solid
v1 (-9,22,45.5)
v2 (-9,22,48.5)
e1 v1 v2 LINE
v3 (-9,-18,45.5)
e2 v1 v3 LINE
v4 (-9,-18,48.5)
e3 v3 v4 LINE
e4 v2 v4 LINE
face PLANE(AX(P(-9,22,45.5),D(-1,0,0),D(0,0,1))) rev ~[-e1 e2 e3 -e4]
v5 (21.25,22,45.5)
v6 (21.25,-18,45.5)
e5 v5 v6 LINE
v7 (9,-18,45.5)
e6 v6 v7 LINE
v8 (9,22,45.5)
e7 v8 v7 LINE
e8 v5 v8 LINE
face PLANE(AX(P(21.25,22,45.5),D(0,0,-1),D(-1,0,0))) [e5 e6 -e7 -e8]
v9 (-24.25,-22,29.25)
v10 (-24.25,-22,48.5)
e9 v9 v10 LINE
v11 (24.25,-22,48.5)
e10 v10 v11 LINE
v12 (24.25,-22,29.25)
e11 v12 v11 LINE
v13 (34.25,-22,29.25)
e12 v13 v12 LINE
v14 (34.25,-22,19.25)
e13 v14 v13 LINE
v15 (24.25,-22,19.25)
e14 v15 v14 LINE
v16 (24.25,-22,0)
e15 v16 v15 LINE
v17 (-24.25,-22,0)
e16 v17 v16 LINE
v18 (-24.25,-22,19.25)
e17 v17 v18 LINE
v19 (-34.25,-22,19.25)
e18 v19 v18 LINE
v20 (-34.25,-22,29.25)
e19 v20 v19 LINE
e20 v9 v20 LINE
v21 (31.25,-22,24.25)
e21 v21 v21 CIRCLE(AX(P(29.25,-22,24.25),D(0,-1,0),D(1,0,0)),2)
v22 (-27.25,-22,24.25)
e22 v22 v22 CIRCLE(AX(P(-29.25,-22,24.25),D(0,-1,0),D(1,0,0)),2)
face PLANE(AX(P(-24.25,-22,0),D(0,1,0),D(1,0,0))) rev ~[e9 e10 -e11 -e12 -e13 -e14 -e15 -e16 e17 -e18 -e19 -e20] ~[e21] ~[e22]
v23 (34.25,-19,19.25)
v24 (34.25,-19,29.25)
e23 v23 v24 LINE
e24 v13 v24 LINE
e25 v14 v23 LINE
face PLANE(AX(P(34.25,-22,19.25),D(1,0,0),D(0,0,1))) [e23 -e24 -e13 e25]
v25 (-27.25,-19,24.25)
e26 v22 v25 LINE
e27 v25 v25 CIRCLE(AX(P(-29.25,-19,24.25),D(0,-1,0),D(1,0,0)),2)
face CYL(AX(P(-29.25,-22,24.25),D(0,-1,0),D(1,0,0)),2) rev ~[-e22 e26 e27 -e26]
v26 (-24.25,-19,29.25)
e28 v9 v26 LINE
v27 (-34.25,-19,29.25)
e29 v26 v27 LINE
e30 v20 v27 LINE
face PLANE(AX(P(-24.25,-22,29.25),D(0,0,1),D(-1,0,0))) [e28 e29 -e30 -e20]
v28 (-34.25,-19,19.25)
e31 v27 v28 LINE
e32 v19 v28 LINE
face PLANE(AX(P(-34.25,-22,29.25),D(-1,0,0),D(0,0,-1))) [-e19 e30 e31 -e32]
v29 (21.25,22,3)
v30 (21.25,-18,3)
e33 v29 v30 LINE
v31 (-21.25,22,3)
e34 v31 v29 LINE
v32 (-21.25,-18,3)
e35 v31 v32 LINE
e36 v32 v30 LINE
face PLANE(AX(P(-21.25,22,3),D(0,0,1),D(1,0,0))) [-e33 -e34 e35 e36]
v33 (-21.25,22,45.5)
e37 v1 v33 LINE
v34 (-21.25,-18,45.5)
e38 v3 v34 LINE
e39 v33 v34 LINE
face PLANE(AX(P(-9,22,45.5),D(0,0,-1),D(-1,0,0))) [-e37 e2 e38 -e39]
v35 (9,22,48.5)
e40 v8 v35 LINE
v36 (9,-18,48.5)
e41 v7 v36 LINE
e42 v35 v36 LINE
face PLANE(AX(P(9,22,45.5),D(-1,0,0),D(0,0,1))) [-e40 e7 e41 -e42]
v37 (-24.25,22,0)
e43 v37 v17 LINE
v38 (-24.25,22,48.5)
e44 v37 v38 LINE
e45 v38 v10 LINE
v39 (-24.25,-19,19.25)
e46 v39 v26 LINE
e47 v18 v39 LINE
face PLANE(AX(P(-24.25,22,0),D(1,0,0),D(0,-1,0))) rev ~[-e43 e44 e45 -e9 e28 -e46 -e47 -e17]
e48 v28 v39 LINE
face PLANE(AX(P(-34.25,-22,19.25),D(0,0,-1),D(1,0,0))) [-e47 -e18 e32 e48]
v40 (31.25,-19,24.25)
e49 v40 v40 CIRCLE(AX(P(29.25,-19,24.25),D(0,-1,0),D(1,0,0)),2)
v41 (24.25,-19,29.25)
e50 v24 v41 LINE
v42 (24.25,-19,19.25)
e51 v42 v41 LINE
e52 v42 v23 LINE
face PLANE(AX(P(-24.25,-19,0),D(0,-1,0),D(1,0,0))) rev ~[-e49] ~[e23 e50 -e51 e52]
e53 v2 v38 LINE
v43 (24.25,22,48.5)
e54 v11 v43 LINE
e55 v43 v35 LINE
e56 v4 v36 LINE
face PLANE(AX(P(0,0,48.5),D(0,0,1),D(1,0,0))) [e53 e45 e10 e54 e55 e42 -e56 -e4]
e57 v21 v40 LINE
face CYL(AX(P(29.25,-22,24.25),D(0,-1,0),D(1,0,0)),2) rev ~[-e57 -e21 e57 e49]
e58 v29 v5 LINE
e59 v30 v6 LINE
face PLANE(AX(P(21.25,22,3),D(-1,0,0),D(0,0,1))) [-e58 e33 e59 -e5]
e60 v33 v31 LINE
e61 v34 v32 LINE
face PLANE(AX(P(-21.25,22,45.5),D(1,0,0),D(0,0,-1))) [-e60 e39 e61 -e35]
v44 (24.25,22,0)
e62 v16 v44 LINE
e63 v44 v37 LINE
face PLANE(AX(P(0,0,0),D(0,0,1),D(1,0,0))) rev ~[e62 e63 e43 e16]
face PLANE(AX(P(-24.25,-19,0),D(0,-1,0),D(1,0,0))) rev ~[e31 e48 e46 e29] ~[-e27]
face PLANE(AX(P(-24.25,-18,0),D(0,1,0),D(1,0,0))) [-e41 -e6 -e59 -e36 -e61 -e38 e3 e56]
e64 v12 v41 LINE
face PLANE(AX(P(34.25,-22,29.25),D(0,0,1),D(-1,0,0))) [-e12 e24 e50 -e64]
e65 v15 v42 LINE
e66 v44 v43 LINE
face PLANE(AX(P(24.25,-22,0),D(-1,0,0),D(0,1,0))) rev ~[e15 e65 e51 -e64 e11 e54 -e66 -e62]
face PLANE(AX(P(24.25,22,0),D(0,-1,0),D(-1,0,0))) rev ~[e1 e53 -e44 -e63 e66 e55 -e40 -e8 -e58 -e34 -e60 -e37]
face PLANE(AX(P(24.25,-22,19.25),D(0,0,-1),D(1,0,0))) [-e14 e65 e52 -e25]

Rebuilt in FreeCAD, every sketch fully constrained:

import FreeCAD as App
import Part
import Sketcher
Q = App.Units.Quantity

doc = App.newDocument("Part")
body = doc.addObject("PartDesign::Body", "Body")

# Sketch on XY plane
sketch1 = body.newObject("Sketcher::SketchObject", "Sketch")
sketch1.AttachmentSupport = (doc.getObject("XY_Plane"), [""])
sketch1.MapMode = "FlatFace"
sketch1.addGeometry([
    Part.LineSegment(App.Vector(-24.25, 22, 0), App.Vector(-24.25, -22, 0)),
    Part.LineSegment(App.Vector(-24.25, -22, 0), App.Vector(24.25, -22, 0)),
    Part.LineSegment(App.Vector(24.25, -22, 0), App.Vector(24.25, 22, 0)),
    Part.LineSegment(App.Vector(24.25, 22, 0), App.Vector(-24.25, 22, 0)),
], False)
sketch1.addConstraint([
    Sketcher.Constraint("Coincident", 0, 2, 1, 1),
    Sketcher.Constraint("Coincident", 1, 2, 2, 1),
    Sketcher.Constraint("Coincident", 2, 2, 3, 1),
    Sketcher.Constraint("Coincident", 3, 2, 0, 1),
    Sketcher.Constraint("Vertical", 0),
    Sketcher.Constraint("Horizontal", 1),
    Sketcher.Constraint("Vertical", 2),
    Sketcher.Constraint("Horizontal", 3),
    Sketcher.Constraint("Symmetric", 0, 2, 2, 2, -1, 1),
    Sketcher.Constraint("DistanceY", 0, 2, 0, 1, Q("44 mm")),
    Sketcher.Constraint("DistanceX", 1, 1, 1, 2, Q("48.5 mm")),
])
pad1 = body.newObject("PartDesign::Pad", "Pad")
pad1.Profile = sketch1
pad1.Length = 48.5

# Sketch on XZ plane
sketch2 = body.newObject("Sketcher::SketchObject", "Sketch001")
sketch2.AttachmentSupport = (doc.getObject("XZ_Plane"), [""])
sketch2.MapMode = "FlatFace"
sketch2.AttachmentOffset = App.Placement(App.Vector(0, 0, -22), App.Rotation())
sketch2.addGeometry([
    Part.LineSegment(App.Vector(21.25, 3, 0), App.Vector(-21.25, 3, 0)),  # 0
    Part.LineSegment(App.Vector(-21.25, 3, 0), App.Vector(-21.25, 45.5, 0)),  # 1
    Part.LineSegment(App.Vector(-21.25, 45.5, 0), App.Vector(-9, 45.5, 0)),  # 2
    Part.LineSegment(App.Vector(-9, 45.5, 0), App.Vector(-9, 48.5, 0)),  # 3
    Part.LineSegment(App.Vector(-9, 48.5, 0), App.Vector(9, 48.5, 0)),  # 4
    Part.LineSegment(App.Vector(9, 48.5, 0), App.Vector(9, 45.5, 0)),  # 5
    Part.LineSegment(App.Vector(9, 45.5, 0), App.Vector(21.25, 45.5, 0)),  # 6
    Part.LineSegment(App.Vector(21.25, 45.5, 0), App.Vector(21.25, 3, 0)),  # 7
], False)
sketch2.addConstraint([
    Sketcher.Constraint("Coincident", 0, 2, 1, 1),
    Sketcher.Constraint("Coincident", 1, 2, 2, 1),
    Sketcher.Constraint("Coincident", 2, 2, 3, 1),
    Sketcher.Constraint("Coincident", 3, 2, 4, 1),
    Sketcher.Constraint("Coincident", 4, 2, 5, 1),
    Sketcher.Constraint("Coincident", 5, 2, 6, 1),
    Sketcher.Constraint("Coincident", 6, 2, 7, 1),
    Sketcher.Constraint("Coincident", 7, 2, 0, 1),
    Sketcher.Constraint("Horizontal", 0),
    Sketcher.Constraint("Vertical", 1),
    Sketcher.Constraint("Horizontal", 2),
    Sketcher.Constraint("Vertical", 3),
    Sketcher.Constraint("Horizontal", 4),
    Sketcher.Constraint("Vertical", 5),
    Sketcher.Constraint("Horizontal", 6),
    Sketcher.Constraint("Vertical", 7),
    Sketcher.Constraint("Symmetric", 2, 2, 5, 2, -2),
    Sketcher.Constraint("Equal", 2, 6),
    Sketcher.Constraint("Equal", 0, 1),
    Sketcher.Constraint("DistanceX", 4, 1, 4, 2, Q("18 mm")),
    Sketcher.Constraint("DistanceY", 3, 1, 3, 2, Q("3 mm")),
    Sketcher.Constraint("DistanceX", 0, 2, 0, 1, Q("42.5 mm")),
    Sketcher.Constraint("DistanceY", -1, 1, 0, 2, Q("3 mm")),
])
pocket1 = body.newObject("PartDesign::Pocket", "Pocket")
pocket1.Profile = sketch2
pocket1.Length = 40
pocket1.Reversed = True

# Sketch on XZ plane
sketch3 = body.newObject("Sketcher::SketchObject", "Sketch002")
sketch3.AttachmentSupport = (doc.getObject("XZ_Plane"), [""])
sketch3.MapMode = "FlatFace"
sketch3.AttachmentOffset = App.Placement(App.Vector(0, 0, 22), App.Rotation())
sketch3.addGeometry([
    Part.LineSegment(App.Vector(-34.25, 29.25, 0), App.Vector(-34.25, 19.25, 0)),  # 0
    Part.LineSegment(App.Vector(-34.25, 19.25, 0), App.Vector(-24.25, 19.25, 0)),  # 1
    Part.LineSegment(App.Vector(-24.25, 19.25, 0), App.Vector(-24.25, 29.25, 0)),  # 2
    Part.LineSegment(App.Vector(-24.25, 29.25, 0), App.Vector(-34.25, 29.25, 0)),  # 3
    Part.Circle(App.Vector(-29.25, 24.25, 0), App.Vector(0, 0, 1), 2),  # 4
    Part.LineSegment(App.Vector(24.25, 29.25, 0), App.Vector(24.25, 19.25, 0)),  # 5
    Part.LineSegment(App.Vector(24.25, 19.25, 0), App.Vector(34.25, 19.25, 0)),  # 6
    Part.LineSegment(App.Vector(34.25, 19.25, 0), App.Vector(34.25, 29.25, 0)),  # 7
    Part.LineSegment(App.Vector(34.25, 29.25, 0), App.Vector(24.25, 29.25, 0)),  # 8
    Part.Circle(App.Vector(29.25, 24.25, 0), App.Vector(0, 0, 1), 2),  # 9
], False)
sketch3.addConstraint([
    Sketcher.Constraint("Coincident", 0, 2, 1, 1),
    Sketcher.Constraint("Coincident", 1, 2, 2, 1),
    Sketcher.Constraint("Coincident", 2, 2, 3, 1),
    Sketcher.Constraint("Coincident", 3, 2, 0, 1),
    Sketcher.Constraint("Coincident", 5, 2, 6, 1),
    Sketcher.Constraint("Coincident", 6, 2, 7, 1),
    Sketcher.Constraint("Coincident", 7, 2, 8, 1),
    Sketcher.Constraint("Coincident", 8, 2, 5, 1),
    Sketcher.Constraint("Vertical", 0),
    Sketcher.Constraint("Horizontal", 1),
    Sketcher.Constraint("Vertical", 2),
    Sketcher.Constraint("Horizontal", 3),
    Sketcher.Constraint("Vertical", 5),
    Sketcher.Constraint("Horizontal", 6),
    Sketcher.Constraint("Vertical", 7),
    Sketcher.Constraint("Horizontal", 8),
    Sketcher.Constraint("Equal", 4, 9),
    Sketcher.Constraint("Symmetric", 4, 3, 9, 3, -2),
    Sketcher.Constraint("Symmetric", 1, 2, 5, 2, -2),
    Sketcher.Constraint("Symmetric", 3, 2, 7, 2, -2),
    Sketcher.Constraint("Equal", 8, 0),
    Sketcher.Constraint("Diameter", 4, Q("4 mm")),
    Sketcher.Constraint("DistanceX", 1, 1, 1, 2, Q("10 mm")),
    Sketcher.Constraint("DistanceX", 0, 2, 4, 3, Q("5 mm")),
    Sketcher.Constraint("DistanceY", 0, 2, 4, 3, Q("5 mm")),
    Sketcher.Constraint("DistanceX", 4, 3, 9, 3, Q("58.5 mm")),
    Sketcher.Constraint("DistanceY", -1, 1, 4, 3, Q("24.25 mm")),
])
pad2 = body.newObject("PartDesign::Pad", "Pad001")
pad2.Profile = sketch3
pad2.Length = 3
pad2.Reversed = True

doc.recompute()
